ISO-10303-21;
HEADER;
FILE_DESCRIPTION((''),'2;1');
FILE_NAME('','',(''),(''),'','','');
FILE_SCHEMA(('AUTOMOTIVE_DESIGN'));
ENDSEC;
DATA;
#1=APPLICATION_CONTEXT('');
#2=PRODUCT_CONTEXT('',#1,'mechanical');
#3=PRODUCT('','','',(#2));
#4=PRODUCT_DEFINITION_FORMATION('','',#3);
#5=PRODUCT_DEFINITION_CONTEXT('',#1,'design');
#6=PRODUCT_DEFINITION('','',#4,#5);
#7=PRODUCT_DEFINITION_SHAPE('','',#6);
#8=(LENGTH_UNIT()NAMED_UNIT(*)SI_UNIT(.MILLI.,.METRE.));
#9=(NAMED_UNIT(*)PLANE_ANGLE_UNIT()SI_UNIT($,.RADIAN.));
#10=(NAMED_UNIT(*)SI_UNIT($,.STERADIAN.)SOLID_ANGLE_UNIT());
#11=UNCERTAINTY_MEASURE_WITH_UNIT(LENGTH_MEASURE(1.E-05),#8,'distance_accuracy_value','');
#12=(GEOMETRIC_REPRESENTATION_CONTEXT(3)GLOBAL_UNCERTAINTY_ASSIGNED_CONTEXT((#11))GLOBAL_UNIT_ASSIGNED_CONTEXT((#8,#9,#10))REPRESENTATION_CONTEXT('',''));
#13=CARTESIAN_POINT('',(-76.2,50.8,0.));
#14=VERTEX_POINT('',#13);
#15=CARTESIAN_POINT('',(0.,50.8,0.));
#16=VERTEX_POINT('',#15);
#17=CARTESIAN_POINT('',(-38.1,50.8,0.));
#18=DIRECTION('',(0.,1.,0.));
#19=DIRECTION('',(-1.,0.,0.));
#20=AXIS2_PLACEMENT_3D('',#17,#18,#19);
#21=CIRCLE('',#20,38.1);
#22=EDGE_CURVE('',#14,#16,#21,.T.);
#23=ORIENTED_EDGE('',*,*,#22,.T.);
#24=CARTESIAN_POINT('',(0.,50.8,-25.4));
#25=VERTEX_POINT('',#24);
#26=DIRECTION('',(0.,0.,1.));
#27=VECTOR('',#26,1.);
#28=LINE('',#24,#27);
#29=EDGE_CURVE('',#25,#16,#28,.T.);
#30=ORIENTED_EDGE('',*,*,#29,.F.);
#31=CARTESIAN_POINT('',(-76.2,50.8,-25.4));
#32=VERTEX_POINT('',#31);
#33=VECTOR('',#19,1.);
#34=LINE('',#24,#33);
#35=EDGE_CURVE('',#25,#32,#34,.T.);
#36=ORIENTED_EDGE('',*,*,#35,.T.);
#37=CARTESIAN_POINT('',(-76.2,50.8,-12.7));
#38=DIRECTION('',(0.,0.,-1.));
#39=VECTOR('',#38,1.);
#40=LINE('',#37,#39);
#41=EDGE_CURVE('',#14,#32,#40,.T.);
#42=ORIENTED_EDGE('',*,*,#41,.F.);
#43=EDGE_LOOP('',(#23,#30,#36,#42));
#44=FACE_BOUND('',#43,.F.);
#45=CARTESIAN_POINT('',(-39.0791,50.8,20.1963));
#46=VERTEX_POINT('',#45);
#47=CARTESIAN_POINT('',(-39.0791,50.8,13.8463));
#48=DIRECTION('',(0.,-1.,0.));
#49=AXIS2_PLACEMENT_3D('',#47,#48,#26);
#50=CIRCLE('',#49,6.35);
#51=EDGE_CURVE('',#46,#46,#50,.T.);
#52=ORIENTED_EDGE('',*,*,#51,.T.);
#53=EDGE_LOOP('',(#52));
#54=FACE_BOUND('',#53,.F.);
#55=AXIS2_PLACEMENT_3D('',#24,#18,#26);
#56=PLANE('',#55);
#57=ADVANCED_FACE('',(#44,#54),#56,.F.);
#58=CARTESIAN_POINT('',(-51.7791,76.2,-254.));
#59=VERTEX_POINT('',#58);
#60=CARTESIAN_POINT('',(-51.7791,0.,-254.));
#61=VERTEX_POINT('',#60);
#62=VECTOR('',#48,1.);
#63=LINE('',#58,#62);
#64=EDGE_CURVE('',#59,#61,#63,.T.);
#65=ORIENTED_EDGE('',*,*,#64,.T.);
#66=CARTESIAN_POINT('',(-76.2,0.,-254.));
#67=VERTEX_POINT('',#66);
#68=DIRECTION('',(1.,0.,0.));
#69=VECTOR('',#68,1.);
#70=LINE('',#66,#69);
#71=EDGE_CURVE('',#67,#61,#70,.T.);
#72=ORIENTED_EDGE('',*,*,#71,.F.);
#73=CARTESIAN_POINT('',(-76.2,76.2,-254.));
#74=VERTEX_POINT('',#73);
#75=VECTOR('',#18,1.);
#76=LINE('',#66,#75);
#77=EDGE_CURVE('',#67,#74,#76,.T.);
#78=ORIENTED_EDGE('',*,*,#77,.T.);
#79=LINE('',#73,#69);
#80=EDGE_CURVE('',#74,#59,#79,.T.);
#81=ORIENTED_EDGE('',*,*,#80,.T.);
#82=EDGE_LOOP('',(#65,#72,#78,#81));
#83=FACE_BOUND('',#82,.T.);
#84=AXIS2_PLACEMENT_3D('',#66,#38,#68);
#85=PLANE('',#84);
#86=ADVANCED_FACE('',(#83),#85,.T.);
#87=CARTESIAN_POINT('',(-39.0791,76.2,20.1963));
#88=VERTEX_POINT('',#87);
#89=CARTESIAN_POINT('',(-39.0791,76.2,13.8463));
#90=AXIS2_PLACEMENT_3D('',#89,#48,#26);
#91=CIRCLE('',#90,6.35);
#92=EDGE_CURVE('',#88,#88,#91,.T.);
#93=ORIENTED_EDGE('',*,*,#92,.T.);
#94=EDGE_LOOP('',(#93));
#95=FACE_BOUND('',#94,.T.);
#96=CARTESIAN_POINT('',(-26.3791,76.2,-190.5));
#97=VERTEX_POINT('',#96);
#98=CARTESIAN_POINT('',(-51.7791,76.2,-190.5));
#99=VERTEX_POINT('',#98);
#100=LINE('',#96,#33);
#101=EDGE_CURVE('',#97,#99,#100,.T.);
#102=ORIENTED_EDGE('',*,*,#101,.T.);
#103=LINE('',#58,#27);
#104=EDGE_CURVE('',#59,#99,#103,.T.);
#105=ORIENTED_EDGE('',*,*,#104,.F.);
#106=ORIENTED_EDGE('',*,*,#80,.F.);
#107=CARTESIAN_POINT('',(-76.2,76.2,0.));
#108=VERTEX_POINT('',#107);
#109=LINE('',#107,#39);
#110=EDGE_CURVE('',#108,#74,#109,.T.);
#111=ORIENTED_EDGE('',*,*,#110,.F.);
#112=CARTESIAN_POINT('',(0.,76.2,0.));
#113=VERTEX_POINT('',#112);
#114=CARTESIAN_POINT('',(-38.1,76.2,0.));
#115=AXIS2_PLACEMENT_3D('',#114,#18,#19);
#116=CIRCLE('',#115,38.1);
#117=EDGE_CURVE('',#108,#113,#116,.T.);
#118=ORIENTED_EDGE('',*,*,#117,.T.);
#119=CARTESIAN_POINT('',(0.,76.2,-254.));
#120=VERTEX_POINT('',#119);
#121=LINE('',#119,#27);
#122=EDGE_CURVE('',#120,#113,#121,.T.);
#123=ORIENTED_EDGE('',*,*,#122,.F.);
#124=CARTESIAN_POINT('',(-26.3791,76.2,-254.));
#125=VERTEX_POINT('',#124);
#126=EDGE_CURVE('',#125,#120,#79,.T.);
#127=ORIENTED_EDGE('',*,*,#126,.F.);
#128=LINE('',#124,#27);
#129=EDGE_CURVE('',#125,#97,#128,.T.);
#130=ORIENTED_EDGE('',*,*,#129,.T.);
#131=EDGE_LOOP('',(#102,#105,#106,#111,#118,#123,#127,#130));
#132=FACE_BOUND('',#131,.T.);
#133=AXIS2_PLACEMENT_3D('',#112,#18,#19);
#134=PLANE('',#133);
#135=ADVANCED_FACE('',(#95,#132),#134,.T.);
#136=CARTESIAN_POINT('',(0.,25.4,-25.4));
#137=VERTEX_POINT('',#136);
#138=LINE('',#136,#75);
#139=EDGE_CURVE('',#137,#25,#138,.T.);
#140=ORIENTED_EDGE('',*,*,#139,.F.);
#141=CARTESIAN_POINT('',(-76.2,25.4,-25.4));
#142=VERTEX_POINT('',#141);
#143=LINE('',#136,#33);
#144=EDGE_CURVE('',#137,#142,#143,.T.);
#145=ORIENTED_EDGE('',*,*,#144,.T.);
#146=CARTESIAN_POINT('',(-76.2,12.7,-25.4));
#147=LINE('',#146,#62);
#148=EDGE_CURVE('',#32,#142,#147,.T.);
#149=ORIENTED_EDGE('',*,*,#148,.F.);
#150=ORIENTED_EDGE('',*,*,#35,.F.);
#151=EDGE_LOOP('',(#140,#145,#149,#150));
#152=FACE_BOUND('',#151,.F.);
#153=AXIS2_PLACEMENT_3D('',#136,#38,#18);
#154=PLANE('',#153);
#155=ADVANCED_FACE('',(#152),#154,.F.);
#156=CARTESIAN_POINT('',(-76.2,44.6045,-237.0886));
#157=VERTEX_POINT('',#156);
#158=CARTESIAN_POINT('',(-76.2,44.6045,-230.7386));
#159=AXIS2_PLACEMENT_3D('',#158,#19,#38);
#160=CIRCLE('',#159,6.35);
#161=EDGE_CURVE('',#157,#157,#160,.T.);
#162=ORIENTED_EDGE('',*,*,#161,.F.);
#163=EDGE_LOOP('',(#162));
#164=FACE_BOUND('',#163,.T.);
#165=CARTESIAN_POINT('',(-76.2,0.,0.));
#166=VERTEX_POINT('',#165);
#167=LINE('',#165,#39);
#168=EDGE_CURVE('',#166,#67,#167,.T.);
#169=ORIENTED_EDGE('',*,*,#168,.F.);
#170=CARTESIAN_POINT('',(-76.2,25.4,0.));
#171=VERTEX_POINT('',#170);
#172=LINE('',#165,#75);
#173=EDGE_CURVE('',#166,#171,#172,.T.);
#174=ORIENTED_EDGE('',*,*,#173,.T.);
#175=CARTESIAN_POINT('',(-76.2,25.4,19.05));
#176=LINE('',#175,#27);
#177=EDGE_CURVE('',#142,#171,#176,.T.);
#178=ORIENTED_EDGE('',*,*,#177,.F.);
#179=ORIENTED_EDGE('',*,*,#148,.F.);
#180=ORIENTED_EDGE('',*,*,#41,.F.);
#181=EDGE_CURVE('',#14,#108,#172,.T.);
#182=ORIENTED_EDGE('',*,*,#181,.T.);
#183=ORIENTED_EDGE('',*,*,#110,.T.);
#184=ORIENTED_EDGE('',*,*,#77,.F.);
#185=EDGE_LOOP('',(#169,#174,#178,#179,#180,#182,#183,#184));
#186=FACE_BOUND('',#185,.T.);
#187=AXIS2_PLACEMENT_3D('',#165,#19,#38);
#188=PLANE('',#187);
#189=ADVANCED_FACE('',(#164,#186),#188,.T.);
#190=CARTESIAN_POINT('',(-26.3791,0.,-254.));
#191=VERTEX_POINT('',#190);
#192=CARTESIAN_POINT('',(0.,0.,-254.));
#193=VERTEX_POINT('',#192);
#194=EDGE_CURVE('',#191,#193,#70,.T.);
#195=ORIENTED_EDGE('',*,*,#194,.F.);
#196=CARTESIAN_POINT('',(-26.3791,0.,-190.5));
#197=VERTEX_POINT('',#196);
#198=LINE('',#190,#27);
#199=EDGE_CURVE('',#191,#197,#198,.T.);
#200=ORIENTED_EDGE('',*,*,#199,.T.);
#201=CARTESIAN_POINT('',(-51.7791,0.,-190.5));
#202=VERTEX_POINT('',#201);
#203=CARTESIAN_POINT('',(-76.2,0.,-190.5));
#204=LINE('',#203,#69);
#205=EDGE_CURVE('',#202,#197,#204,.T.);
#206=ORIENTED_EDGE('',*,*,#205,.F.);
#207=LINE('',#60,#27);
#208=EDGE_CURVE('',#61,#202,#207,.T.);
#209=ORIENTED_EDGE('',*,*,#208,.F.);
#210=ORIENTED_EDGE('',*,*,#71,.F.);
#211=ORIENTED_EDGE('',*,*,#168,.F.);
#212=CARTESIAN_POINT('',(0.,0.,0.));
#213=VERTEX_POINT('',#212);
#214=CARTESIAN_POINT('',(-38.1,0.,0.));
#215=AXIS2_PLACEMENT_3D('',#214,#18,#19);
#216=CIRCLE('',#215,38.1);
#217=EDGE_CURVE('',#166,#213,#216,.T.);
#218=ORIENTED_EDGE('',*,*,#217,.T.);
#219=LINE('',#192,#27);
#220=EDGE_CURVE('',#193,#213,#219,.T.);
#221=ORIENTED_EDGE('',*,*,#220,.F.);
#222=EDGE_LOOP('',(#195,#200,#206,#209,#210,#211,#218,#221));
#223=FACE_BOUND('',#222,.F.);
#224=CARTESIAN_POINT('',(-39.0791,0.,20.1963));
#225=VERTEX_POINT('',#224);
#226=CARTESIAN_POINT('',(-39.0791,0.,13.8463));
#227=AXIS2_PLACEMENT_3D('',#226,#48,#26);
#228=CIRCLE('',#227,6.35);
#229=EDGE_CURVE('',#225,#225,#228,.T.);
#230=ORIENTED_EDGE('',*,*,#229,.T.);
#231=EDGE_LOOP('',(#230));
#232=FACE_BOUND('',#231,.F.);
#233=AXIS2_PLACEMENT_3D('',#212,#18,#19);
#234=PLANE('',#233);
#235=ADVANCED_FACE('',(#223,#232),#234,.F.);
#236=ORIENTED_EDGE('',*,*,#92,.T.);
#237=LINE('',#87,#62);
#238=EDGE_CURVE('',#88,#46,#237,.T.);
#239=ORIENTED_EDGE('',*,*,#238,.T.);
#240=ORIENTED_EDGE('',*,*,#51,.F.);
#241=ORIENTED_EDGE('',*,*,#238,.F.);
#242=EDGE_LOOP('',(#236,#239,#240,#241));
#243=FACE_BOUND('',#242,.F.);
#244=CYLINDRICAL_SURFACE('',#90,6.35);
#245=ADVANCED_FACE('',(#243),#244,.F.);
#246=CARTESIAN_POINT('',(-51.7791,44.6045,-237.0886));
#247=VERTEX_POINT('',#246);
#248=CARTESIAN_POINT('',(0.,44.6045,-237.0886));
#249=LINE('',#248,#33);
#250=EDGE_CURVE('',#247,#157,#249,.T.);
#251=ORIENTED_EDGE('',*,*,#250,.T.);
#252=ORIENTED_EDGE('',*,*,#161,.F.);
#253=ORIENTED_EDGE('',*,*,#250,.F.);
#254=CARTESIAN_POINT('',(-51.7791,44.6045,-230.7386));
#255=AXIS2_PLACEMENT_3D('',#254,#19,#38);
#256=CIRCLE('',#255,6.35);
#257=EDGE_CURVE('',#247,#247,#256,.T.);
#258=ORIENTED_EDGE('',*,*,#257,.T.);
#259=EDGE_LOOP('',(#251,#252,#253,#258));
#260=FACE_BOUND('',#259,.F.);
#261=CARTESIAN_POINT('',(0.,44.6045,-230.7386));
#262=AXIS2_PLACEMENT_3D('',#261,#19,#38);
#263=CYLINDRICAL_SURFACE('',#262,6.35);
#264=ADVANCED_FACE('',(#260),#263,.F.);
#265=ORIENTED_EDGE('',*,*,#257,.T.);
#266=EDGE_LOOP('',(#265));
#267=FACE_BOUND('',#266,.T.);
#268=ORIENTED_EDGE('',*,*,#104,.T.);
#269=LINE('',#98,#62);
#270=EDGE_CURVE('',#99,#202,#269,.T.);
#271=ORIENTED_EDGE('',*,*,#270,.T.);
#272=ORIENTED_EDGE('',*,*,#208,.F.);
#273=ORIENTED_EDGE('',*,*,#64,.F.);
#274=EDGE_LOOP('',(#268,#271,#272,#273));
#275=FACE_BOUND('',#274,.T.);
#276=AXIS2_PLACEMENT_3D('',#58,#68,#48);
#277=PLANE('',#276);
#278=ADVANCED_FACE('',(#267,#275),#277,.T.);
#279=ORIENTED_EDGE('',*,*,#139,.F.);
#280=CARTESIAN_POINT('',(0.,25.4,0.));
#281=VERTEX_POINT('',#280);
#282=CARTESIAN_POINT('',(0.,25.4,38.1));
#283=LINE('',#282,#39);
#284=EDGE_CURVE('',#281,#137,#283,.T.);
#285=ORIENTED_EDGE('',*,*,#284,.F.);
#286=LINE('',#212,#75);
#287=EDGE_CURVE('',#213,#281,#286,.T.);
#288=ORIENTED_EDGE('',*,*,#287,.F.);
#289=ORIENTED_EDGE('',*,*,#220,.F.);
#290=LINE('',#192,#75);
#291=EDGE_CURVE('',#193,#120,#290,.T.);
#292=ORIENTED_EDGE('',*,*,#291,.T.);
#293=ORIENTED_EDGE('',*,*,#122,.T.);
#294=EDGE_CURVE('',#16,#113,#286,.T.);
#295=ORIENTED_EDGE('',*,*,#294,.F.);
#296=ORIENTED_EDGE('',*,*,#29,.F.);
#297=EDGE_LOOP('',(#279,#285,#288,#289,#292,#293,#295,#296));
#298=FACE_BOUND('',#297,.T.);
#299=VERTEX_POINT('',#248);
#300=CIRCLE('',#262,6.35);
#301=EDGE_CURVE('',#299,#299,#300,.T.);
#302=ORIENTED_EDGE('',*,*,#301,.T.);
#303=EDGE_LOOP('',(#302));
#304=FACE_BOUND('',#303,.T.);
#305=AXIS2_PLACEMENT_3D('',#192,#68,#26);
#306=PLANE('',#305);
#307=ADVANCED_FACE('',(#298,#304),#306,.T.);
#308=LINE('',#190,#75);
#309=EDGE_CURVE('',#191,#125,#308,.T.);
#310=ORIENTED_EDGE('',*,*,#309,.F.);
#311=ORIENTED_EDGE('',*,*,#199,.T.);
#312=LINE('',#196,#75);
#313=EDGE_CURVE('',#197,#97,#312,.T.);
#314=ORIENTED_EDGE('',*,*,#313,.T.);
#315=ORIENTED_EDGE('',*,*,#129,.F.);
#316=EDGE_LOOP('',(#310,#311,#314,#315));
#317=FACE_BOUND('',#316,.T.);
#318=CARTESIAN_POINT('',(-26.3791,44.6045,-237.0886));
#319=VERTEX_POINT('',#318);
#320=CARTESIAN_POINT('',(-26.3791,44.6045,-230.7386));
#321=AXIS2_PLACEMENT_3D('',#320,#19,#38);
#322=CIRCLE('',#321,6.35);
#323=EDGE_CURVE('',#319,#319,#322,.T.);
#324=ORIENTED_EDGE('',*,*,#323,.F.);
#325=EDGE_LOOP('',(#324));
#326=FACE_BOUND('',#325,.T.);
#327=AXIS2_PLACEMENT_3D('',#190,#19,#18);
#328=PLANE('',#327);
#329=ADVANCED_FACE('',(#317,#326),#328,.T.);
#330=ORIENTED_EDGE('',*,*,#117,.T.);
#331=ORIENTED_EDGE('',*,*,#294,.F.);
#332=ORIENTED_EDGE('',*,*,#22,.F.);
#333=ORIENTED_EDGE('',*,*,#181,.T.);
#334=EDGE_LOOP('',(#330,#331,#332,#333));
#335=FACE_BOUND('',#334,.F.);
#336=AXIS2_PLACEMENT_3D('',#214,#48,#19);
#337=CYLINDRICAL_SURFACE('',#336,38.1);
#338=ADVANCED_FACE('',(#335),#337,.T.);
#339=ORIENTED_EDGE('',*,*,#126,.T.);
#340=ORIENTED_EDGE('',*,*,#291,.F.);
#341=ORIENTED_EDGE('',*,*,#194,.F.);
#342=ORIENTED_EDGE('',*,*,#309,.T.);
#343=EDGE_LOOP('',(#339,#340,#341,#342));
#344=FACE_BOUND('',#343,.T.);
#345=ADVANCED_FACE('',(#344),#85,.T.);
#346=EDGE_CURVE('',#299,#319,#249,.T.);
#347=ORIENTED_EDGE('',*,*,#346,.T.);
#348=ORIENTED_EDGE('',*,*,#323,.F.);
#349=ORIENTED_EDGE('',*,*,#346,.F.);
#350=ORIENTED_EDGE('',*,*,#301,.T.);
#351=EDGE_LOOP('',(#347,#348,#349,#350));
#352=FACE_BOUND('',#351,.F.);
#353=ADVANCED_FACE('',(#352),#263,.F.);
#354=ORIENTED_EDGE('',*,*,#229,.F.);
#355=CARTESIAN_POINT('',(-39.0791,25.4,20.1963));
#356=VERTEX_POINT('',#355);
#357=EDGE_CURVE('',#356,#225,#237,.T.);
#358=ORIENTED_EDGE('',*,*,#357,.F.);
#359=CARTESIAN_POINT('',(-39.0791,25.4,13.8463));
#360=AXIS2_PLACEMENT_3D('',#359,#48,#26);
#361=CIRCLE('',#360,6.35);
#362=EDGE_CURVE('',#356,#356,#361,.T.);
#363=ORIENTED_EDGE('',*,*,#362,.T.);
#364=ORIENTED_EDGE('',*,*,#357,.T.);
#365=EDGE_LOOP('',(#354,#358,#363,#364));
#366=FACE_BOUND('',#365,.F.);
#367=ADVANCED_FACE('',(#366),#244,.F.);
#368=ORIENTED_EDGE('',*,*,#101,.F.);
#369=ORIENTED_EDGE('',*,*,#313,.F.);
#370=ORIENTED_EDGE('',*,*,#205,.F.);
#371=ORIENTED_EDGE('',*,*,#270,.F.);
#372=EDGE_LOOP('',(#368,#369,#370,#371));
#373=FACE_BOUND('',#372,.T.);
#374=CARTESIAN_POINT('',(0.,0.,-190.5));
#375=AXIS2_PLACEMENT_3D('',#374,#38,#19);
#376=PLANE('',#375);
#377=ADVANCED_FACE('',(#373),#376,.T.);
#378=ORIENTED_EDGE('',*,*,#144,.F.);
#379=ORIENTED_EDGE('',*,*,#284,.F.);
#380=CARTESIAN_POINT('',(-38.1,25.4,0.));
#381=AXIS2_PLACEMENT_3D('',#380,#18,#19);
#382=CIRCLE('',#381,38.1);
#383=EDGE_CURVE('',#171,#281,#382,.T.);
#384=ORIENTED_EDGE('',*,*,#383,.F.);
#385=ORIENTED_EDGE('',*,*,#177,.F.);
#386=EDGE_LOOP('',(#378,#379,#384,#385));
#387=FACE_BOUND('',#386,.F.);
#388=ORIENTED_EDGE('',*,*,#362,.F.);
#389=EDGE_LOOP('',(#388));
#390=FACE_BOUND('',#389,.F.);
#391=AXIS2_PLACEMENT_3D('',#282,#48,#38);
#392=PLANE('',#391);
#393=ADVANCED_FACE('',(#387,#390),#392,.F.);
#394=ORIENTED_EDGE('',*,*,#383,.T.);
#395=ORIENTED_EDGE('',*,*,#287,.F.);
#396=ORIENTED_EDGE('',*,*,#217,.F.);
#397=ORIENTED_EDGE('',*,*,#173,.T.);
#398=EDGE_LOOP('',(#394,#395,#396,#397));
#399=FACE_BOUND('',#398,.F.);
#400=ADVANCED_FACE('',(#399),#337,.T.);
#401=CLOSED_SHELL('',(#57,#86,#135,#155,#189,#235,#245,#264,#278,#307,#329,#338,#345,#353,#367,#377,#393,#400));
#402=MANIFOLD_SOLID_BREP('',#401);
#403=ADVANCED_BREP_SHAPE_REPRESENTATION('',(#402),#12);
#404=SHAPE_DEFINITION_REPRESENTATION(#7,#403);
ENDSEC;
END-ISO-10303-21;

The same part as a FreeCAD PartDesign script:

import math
import FreeCAD as App
import Part
import Sketcher

V = App.Vector
Q = App.Units.Quantity

doc = App.newDocument("Part")
body = doc.addObject("PartDesign::Body", "Body")

sketch1 = doc.addObject("Sketcher::SketchObject", "Sketch")
body.addObject(sketch1)
sketch1.AttachmentSupport = (doc.XZ_Plane, [""])
sketch1.MapMode = "FlatFace"
sketch1.addGeometry(Part.LineSegment(V(-76, -254, 0), V(-76, 0, 0)), False)
sketch1.addGeometry(Part.ArcOfCircle(Part.Circle(V(-38, 0, 0), V(0, 0, 1), 38), math.radians(0), math.radians(180)), False)
sketch1.addGeometry(Part.LineSegment(V(0, 0, 0), V(0, -254, 0)), False)
sketch1.addGeometry(Part.LineSegment(V(0, -254, 0), V(-76, -254, 0)), False)
sketch1.addConstraint(Sketcher.Constraint("Tangent", 0, 2, 1, 2))
sketch1.addConstraint(Sketcher.Constraint("Tangent", 1, 1, 2, 1))
sketch1.addConstraint(Sketcher.Constraint("Coincident", 2, 2, 3, 1))
sketch1.addConstraint(Sketcher.Constraint("Coincident", 3, 2, 0, 1))
sketch1.addConstraint(Sketcher.Constraint("Vertical", 0))
sketch1.addConstraint(Sketcher.Constraint("Vertical", 2))
sketch1.addConstraint(Sketcher.Constraint("Horizontal", 3))
sketch1.addConstraint(Sketcher.Constraint("Coincident", 1, 1, -1, 1))
sketch1.addConstraint(Sketcher.Constraint("Radius", 1, Q("1.5 in")))
sketch1.addConstraint(Sketcher.Constraint("DistanceY", 0, 1, 0, 2, Q("10 in")))
pad1 = doc.addObject("PartDesign::Pad", "Pad")
body.addObject(pad1)
pad1.Profile = sketch1
pad1.Length = Q("3 in")
pad1.Reversed = True

sketch2 = doc.addObject("Sketcher::SketchObject", "Sketch001")
body.addObject(sketch2)
sketch2.AttachmentSupport = (doc.YZ_Plane, [""])
sketch2.MapMode = "FlatFace"
sketch2.addGeometry(Part.LineSegment(V(51, 38, 0), V(25, 38, 0)), False)
sketch2.addGeometry(Part.LineSegment(V(25, 38, 0), V(25, -25, 0)), False)
sketch2.addGeometry(Part.LineSegment(V(25, -25, 0), V(51, -25, 0)), False)
sketch2.addGeometry(Part.LineSegment(V(51, -25, 0), V(51, 38, 0)), False)
sketch2.addConstraint(Sketcher.Constraint("Coincident", 0, 2, 1, 1))
sketch2.addConstraint(Sketcher.Constraint("Coincident", 1, 2, 2, 1))
sketch2.addConstraint(Sketcher.Constraint("Coincident", 2, 2, 3, 1))
sketch2.addConstraint(Sketcher.Constraint("Coincident", 3, 2, 0, 1))
sketch2.addConstraint(Sketcher.Constraint("Horizontal", 0))
sketch2.addConstraint(Sketcher.Constraint("Vertical", 1))
sketch2.addConstraint(Sketcher.Constraint("Horizontal", 2))
sketch2.addConstraint(Sketcher.Constraint("Vertical", 3))
sketch2.addConstraint(Sketcher.Constraint("DistanceX", 0, 2, 0, 1, Q("1 in")))
sketch2.addConstraint(Sketcher.Constraint("DistanceY", 1, 2, 1, 1, Q("2.5 in")))
sketch2.addConstraint(Sketcher.Constraint("DistanceX", -1, 1, 0, 2, Q("1 in")))
sketch2.addConstraint(Sketcher.Constraint("DistanceY", 1, 2, -1, 1, Q("1 in")))
pocket1 = doc.addObject("PartDesign::Pocket", "Pocket")
body.addObject(pocket1)
pocket1.Profile = sketch2
pocket1.Length = Q("4.375 in")

sketch3 = doc.addObject("Sketcher::SketchObject", "Sketch002")
body.addObject(sketch3)
sketch3.AttachmentSupport = (doc.XZ_Plane, [""])
sketch3.MapMode = "FlatFace"
sketch3.AttachmentOffset = App.Placement(V(0, 0, -3 * 25.4), App.Rotation())
sketch3.addGeometry(Part.Circle(V(-39, 14, 0), V(0, 0, 1), 6), False)
sketch3.addConstraint(Sketcher.Constraint("Diameter", 0, Q("0.5 in")))
sketch3.addConstraint(Sketcher.Constraint("DistanceX", 0, 3, -1, 1, Q("39.079 mm")))
sketch3.addConstraint(Sketcher.Constraint("DistanceY", -1, 1, 0, 3, Q("13.8463 mm")))
doc.recompute()
hole = doc.addObject("PartDesign::Hole", "Hole")
body.addObject(hole)
hole.Profile = sketch3
hole.ThreadType = "None"
hole.Diameter = Q("0.5 in")
hole.DepthType = "Dimension"
hole.Depth = Q("3.875 in")
hole.DrillPoint = "Angled"
hole.DrillPointAngle = 118
hole.Reversed = True

sketch4 = doc.addObject("Sketcher::SketchObject", "Sketch003")
body.addObject(sketch4)
sketch4.AttachmentSupport = (doc.XY_Plane, [""])
sketch4.MapMode = "FlatFace"
sketch4.AttachmentOffset = App.Placement(V(0, 0, -10 * 25.4), App.Rotation())
sketch4.addGeometry(Part.LineSegment(V(-26, 0, 0), V(-52, 0, 0)), False)
sketch4.addGeometry(Part.LineSegment(V(-52, 0, 0), V(-52, 76, 0)), False)
sketch4.addGeometry(Part.LineSegment(V(-52, 76, 0), V(-26, 76, 0)), False)
sketch4.addGeometry(Part.LineSegment(V(-26, 76, 0), V(-26, 0, 0)), False)
sketch4.addConstraint(Sketcher.Constraint("Coincident", 0, 2, 1, 1))
sketch4.addConstraint(Sketcher.Constraint("Coincident", 1, 2, 2, 1))
sketch4.addConstraint(Sketcher.Constraint("Coincident", 2, 2, 3, 1))
sketch4.addConstraint(Sketcher.Constraint("Coincident", 3, 2, 0, 1))
sketch4.addConstraint(Sketcher.Constraint("Horizontal", 0))
sketch4.addConstraint(Sketcher.Constraint("Vertical", 1))
sketch4.addConstraint(Sketcher.Constraint("Horizontal", 2))
sketch4.addConstraint(Sketcher.Constraint("Vertical", 3))
sketch4.addConstraint(Sketcher.Constraint("PointOnObject", 0, 2, -1))
sketch4.addConstraint(Sketcher.Constraint("DistanceX", 0, 2, 0, 1, Q("1 in")))
sketch4.addConstraint(Sketcher.Constraint("DistanceY", 1, 1, 1, 2, Q("3 in")))
sketch4.addConstraint(Sketcher.Constraint("DistanceX", 0, 2, -1, 1, Q("51.779 mm")))
pocket2 = doc.addObject("PartDesign::Pocket", "Pocket001")
body.addObject(pocket2)
pocket2.Profile = sketch4
pocket2.Length = Q("2.5 in")
pocket2.Reversed = True

sketch5 = doc.addObject("Sketcher::SketchObject", "Sketch004")
body.addObject(sketch5)
sketch5.AttachmentSupport = (doc.YZ_Plane, [""])
sketch5.MapMode = "FlatFace"
sketch5.addGeometry(Part.Circle(V(45, -231, 0), V(0, 0, 1), 6), False)
sketch5.addConstraint(Sketcher.Constraint("Diameter", 0, Q("0.5 in")))
sketch5.addConstraint(Sketcher.Constraint("DistanceY", 0, 3, -1, 1, Q("9.0842 in")))
sketch5.addConstraint(Sketcher.Constraint("DistanceX", -1, 1, 0, 3, Q("44.6045 mm")))
doc.recompute()
hole2 = doc.addObject("PartDesign::Hole", "Hole001")
body.addObject(hole2)
hole2.Profile = sketch5
hole2.ThreadType = "None"
hole2.Diameter = Q("0.5 in")
hole2.DepthType = "Dimension"
hole2.Depth = Q("3.875 in")
hole2.DrillPoint = "Angled"
hole2.DrillPointAngle = 118

doc.recompute()
